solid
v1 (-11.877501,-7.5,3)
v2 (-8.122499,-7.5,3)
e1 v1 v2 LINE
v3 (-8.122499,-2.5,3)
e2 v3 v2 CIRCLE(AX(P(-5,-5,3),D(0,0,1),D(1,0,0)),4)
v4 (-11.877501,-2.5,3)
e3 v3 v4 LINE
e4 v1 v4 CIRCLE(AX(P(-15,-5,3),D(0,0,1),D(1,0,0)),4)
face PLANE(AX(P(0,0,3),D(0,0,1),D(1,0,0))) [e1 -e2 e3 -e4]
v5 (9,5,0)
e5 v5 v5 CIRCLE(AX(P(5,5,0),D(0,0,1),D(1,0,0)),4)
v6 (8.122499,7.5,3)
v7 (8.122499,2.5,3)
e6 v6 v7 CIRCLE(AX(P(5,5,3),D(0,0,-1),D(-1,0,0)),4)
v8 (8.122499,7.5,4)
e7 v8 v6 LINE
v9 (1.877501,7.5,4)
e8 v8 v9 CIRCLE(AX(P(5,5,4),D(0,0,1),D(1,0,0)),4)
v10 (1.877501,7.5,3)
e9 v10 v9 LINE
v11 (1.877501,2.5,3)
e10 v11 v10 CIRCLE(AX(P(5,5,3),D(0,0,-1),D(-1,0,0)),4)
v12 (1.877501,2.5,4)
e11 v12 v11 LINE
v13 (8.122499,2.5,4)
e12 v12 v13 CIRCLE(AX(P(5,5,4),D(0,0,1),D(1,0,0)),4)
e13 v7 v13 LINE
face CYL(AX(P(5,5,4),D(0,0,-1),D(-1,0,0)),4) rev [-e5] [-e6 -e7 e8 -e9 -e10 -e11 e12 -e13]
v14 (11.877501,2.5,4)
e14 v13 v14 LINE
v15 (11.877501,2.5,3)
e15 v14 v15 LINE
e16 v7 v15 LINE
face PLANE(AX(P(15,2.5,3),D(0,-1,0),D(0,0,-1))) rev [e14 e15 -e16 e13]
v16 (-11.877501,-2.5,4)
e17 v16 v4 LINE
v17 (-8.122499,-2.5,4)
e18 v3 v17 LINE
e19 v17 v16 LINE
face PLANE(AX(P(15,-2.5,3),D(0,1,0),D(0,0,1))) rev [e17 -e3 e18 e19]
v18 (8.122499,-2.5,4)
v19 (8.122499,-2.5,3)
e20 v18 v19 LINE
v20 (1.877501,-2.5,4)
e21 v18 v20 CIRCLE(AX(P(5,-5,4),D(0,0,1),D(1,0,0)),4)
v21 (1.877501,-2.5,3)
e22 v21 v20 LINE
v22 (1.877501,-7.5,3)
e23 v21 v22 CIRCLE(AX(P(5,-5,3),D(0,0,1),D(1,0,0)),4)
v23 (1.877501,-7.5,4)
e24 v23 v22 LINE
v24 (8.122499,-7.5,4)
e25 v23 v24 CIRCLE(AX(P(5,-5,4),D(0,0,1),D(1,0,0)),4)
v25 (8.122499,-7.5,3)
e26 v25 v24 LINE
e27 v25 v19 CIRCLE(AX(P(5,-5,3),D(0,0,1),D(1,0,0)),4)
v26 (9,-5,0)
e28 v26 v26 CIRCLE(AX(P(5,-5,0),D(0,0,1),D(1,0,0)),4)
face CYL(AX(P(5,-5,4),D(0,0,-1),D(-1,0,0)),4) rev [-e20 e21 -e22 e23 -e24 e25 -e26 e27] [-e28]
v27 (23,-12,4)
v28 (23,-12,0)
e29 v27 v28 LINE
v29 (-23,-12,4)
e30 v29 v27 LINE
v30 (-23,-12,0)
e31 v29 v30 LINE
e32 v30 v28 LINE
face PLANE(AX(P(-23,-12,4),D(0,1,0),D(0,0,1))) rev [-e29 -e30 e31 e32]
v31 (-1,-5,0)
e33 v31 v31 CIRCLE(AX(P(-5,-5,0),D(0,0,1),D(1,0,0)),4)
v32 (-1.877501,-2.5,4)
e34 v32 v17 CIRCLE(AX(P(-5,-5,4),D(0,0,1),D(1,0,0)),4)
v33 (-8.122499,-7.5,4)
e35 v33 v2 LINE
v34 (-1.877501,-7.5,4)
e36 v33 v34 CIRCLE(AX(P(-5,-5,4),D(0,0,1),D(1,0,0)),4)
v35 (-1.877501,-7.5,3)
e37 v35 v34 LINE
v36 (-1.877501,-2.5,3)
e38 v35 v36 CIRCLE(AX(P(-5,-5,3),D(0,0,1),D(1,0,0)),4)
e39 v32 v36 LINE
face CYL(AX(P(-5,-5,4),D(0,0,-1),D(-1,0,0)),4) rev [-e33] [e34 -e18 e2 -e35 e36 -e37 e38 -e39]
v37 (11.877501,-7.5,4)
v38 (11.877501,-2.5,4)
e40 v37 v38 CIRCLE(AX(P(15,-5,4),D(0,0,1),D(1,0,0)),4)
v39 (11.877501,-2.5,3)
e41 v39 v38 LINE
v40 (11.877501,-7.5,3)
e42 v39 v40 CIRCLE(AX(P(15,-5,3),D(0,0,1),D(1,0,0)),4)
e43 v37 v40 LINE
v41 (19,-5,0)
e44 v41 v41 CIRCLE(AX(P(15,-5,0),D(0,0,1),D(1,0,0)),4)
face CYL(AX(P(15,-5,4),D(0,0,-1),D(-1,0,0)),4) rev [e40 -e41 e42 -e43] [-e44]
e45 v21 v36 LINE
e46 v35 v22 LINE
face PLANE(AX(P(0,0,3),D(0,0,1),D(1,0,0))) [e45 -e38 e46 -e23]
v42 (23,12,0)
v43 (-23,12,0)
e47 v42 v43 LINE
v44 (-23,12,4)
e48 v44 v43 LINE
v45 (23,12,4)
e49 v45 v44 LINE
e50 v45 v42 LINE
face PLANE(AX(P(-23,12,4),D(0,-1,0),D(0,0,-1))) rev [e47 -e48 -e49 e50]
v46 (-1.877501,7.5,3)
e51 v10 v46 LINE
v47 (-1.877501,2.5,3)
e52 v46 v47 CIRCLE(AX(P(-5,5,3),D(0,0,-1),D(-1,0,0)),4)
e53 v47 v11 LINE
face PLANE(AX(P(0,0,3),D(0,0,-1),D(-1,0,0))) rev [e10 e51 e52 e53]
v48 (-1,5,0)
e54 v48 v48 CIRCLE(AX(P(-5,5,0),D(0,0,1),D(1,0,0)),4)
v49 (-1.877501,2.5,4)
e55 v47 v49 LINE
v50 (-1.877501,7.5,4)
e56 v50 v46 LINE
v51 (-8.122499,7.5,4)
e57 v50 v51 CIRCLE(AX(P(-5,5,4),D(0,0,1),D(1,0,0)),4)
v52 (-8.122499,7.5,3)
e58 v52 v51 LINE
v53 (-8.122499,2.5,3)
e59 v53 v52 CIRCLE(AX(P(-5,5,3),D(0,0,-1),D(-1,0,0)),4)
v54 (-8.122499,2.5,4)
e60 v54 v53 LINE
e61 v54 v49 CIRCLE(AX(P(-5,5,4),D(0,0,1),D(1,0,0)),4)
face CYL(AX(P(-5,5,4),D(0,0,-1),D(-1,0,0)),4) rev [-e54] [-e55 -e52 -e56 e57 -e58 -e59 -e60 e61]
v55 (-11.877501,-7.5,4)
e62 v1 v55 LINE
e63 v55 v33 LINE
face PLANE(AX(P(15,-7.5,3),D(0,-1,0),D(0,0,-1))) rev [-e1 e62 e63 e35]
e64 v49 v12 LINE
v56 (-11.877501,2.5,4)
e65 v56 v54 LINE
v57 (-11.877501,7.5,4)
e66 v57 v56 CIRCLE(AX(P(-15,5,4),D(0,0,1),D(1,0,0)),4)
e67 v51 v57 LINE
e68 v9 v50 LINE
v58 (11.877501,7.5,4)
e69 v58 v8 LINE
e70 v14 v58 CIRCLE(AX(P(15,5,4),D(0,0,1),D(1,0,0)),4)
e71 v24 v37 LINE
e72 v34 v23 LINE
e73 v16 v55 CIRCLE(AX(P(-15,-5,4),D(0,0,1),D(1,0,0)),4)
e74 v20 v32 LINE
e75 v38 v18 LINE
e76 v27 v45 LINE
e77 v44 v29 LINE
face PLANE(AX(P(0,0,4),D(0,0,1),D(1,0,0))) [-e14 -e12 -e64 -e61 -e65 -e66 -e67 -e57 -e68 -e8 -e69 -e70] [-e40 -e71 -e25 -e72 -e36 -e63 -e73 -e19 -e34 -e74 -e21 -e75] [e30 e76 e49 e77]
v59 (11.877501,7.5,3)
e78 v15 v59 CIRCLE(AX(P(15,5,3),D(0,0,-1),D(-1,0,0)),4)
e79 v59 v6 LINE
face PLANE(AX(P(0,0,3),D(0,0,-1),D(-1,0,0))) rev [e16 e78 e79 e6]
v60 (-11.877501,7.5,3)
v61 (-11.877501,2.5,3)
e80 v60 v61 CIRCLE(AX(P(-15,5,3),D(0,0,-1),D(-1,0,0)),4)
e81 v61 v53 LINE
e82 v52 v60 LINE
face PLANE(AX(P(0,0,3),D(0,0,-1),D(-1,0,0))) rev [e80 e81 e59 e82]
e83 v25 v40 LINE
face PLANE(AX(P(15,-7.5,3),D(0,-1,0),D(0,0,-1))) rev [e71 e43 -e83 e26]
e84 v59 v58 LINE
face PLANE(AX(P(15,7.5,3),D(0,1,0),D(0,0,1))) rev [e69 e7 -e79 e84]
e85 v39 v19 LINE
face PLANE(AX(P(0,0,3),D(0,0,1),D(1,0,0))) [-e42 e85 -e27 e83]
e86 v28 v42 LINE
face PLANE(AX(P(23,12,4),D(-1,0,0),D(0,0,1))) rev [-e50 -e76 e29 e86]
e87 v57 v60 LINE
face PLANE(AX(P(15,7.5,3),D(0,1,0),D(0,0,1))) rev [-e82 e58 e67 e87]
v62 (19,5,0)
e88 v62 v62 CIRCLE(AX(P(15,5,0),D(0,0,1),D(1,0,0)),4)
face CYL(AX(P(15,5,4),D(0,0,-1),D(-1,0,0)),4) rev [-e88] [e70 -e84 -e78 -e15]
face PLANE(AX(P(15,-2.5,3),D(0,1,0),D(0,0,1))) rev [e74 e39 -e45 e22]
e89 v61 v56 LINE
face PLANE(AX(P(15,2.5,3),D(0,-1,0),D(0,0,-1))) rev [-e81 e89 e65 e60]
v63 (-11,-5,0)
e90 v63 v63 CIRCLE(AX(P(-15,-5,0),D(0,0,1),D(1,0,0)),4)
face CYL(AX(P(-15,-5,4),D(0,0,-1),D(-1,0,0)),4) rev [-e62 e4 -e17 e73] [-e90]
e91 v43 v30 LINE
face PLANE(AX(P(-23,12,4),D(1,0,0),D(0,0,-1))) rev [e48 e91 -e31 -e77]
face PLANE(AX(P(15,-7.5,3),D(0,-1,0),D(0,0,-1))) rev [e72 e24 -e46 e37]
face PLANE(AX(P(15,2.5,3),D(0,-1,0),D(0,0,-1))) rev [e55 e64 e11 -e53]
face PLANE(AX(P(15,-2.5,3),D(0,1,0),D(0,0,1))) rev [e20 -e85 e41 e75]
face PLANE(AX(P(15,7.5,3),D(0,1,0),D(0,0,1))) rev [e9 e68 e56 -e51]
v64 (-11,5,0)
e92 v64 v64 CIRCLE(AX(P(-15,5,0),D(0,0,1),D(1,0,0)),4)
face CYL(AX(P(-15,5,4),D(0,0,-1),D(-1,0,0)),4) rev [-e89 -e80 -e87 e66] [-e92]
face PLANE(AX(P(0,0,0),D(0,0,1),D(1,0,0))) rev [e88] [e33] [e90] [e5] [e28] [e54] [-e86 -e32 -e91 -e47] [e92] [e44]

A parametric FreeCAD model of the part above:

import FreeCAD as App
import Part
import Sketcher

V = App.Vector


def add_polygon(sketch, points):
    """Adds a closed chain of lines whose ends are joined by coincident constraints."""
    first, n = sketch.GeometryCount, len(points)
    for a, b in zip(points, points[1:] + points[:1]):
        sketch.addGeometry(Part.LineSegment(App.Vector(*a, 0), App.Vector(*b, 0)), False)
    for i in range(n):
        sketch.addConstraint(Sketcher.Constraint("Coincident", first + i, 2, first + (i + 1) % n, 1))

doc = App.newDocument("Part")
body = doc.addObject("PartDesign::Body", "Body")

sketch1 = doc.addObject("Sketcher::SketchObject", "Sketch")
body.addObject(sketch1)
sketch1.AttachmentSupport = (doc.XY_Plane, [""])
sketch1.MapMode = "FlatFace"
add_polygon(sketch1, [(-23, 12), (-23, -12), (23, -12), (23, 12)])
sketch1.addGeometry(Part.Circle(V(-15, -5, 0), V(0, 0, 1), 4), False)
sketch1.addGeometry(Part.Circle(V(-5, -5, 0), V(0, 0, 1), 4), False)
sketch1.addGeometry(Part.Circle(V(5, -5, 0), V(0, 0, 1), 4), False)
sketch1.addGeometry(Part.Circle(V(15, -5, 0), V(0, 0, 1), 4), False)
sketch1.addGeometry(Part.Circle(V(-15, 5, 0), V(0, 0, 1), 4), False)
sketch1.addGeometry(Part.Circle(V(-5, 5, 0), V(0, 0, 1), 4), False)
sketch1.addGeometry(Part.Circle(V(5, 5, 0), V(0, 0, 1), 4), False)
sketch1.addGeometry(Part.Circle(V(15, 5, 0), V(0, 0, 1), 4), False)
sketch1.addConstraint(Sketcher.Constraint("Vertical", 0))
sketch1.addConstraint(Sketcher.Constraint("Horizontal", 1))
sketch1.addConstraint(Sketcher.Constraint("Vertical", 2))
sketch1.addConstraint(Sketcher.Constraint("Horizontal", 3))
sketch1.addConstraint(Sketcher.Constraint("Equal", 4, 5))
sketch1.addConstraint(Sketcher.Constraint("Equal", 5, 6))
sketch1.addConstraint(Sketcher.Constraint("Equal", 6, 7))
sketch1.addConstraint(Sketcher.Constraint("Equal", 7, 8))
sketch1.addConstraint(Sketcher.Constraint("Equal", 8, 9))
sketch1.addConstraint(Sketcher.Constraint("Equal", 9, 10))
sketch1.addConstraint(Sketcher.Constraint("Equal", 10, 11))
sketch1.addConstraint(Sketcher.Constraint("Symmetric", 7, 3, 8, 3, -1, 1))
sketch1.addConstraint(Sketcher.Constraint("Symmetric", 6, 3, 9, 3, -1, 1))
sketch1.addConstraint(Sketcher.Constraint("Symmetric", 5, 3, 10, 3, -1, 1))
sketch1.addConstraint(Sketcher.Constraint("Symmetric", 4, 3, 11, 3, -1, 1))
sketch1.addConstraint(Sketcher.Constraint("Symmetric", 0, 2, 2, 2, -1, 1))
sketch1.addConstraint(Sketcher.Constraint("Symmetric", 5, 3, 6, 3, -2))
sketch1.addConstraint(Sketcher.Constraint("Symmetric", 4, 3, 7, 3, -2))
sketch1.addConstraint(Sketcher.Constraint("Horizontal", 4, 3, 5, 3))
sketch1.addConstraint(Sketcher.Constraint("Diameter", 4, 8.0))
sketch1.addConstraint(Sketcher.Constraint("DistanceX", 1, 1, 1, 2, 46.0))
sketch1.addConstraint(Sketcher.Constraint("DistanceY", 0, 2, 0, 1, 24.0))
sketch1.addConstraint(Sketcher.Constraint("DistanceX", 4, 3, -1, 1, 15.0))
sketch1.addConstraint(Sketcher.Constraint("DistanceY", 4, 3, -1, 1, 5.0))
sketch1.addConstraint(Sketcher.Constraint("DistanceX", 5, 3, -1, 1, 5.0))
pad1 = doc.addObject("PartDesign::Pad", "Pad")
body.addObject(pad1)
pad1.Profile = sketch1
pad1.Length = 4

sketch2 = doc.addObject("Sketcher::SketchObject", "Sketch001")
body.addObject(sketch2)
sketch2.AttachmentSupport = (doc.XY_Plane, [""])
sketch2.MapMode = "FlatFace"
sketch2.AttachmentOffset = App.Placement(V(0, 0, 4), App.Rotation())
add_polygon(sketch2, [(-15, 8), (-15, 2), (15, 2), (15, 8)])
add_polygon(sketch2, [(-15, -2), (-15, -8), (15, -8), (15, -2)])
sketch2.addConstraint(Sketcher.Constraint("Vertical", 0))
sketch2.addConstraint(Sketcher.Constraint("Horizontal", 1))
sketch2.addConstraint(Sketcher.Constraint("Vertical", 2))
sketch2.addConstraint(Sketcher.Constraint("Horizontal", 3))
sketch2.addConstraint(Sketcher.Constraint("Vertical", 4))
sketch2.addConstraint(Sketcher.Constraint("Horizontal", 5))
sketch2.addConstraint(Sketcher.Constraint("Vertical", 6))
sketch2.addConstraint(Sketcher.Constraint("Horizontal", 7))
sketch2.addConstraint(Sketcher.Constraint("Symmetric", 2, 2, 4, 2, -1, 1))
sketch2.addConstraint(Sketcher.Constraint("Symmetric", 0, 2, 6, 2, -1, 1))
sketch2.addConstraint(Sketcher.Constraint("Vertical", 3, 2, 4, 2))
sketch2.addConstraint(Sketcher.Constraint("DistanceX", 1, 1, 1, 2, 30.0))
sketch2.addConstraint(Sketcher.Constraint("DistanceY", 0, 2, 0, 1, 5.0))
sketch2.addConstraint(Sketcher.Constraint("DistanceY", 4, 2, 0, 2, 10.0))
pocket1 = doc.addObject("PartDesign::Pocket", "Pocket")
body.addObject(pocket1)
pocket1.Profile = sketch2
pocket1.Length = 1

doc.recompute()
